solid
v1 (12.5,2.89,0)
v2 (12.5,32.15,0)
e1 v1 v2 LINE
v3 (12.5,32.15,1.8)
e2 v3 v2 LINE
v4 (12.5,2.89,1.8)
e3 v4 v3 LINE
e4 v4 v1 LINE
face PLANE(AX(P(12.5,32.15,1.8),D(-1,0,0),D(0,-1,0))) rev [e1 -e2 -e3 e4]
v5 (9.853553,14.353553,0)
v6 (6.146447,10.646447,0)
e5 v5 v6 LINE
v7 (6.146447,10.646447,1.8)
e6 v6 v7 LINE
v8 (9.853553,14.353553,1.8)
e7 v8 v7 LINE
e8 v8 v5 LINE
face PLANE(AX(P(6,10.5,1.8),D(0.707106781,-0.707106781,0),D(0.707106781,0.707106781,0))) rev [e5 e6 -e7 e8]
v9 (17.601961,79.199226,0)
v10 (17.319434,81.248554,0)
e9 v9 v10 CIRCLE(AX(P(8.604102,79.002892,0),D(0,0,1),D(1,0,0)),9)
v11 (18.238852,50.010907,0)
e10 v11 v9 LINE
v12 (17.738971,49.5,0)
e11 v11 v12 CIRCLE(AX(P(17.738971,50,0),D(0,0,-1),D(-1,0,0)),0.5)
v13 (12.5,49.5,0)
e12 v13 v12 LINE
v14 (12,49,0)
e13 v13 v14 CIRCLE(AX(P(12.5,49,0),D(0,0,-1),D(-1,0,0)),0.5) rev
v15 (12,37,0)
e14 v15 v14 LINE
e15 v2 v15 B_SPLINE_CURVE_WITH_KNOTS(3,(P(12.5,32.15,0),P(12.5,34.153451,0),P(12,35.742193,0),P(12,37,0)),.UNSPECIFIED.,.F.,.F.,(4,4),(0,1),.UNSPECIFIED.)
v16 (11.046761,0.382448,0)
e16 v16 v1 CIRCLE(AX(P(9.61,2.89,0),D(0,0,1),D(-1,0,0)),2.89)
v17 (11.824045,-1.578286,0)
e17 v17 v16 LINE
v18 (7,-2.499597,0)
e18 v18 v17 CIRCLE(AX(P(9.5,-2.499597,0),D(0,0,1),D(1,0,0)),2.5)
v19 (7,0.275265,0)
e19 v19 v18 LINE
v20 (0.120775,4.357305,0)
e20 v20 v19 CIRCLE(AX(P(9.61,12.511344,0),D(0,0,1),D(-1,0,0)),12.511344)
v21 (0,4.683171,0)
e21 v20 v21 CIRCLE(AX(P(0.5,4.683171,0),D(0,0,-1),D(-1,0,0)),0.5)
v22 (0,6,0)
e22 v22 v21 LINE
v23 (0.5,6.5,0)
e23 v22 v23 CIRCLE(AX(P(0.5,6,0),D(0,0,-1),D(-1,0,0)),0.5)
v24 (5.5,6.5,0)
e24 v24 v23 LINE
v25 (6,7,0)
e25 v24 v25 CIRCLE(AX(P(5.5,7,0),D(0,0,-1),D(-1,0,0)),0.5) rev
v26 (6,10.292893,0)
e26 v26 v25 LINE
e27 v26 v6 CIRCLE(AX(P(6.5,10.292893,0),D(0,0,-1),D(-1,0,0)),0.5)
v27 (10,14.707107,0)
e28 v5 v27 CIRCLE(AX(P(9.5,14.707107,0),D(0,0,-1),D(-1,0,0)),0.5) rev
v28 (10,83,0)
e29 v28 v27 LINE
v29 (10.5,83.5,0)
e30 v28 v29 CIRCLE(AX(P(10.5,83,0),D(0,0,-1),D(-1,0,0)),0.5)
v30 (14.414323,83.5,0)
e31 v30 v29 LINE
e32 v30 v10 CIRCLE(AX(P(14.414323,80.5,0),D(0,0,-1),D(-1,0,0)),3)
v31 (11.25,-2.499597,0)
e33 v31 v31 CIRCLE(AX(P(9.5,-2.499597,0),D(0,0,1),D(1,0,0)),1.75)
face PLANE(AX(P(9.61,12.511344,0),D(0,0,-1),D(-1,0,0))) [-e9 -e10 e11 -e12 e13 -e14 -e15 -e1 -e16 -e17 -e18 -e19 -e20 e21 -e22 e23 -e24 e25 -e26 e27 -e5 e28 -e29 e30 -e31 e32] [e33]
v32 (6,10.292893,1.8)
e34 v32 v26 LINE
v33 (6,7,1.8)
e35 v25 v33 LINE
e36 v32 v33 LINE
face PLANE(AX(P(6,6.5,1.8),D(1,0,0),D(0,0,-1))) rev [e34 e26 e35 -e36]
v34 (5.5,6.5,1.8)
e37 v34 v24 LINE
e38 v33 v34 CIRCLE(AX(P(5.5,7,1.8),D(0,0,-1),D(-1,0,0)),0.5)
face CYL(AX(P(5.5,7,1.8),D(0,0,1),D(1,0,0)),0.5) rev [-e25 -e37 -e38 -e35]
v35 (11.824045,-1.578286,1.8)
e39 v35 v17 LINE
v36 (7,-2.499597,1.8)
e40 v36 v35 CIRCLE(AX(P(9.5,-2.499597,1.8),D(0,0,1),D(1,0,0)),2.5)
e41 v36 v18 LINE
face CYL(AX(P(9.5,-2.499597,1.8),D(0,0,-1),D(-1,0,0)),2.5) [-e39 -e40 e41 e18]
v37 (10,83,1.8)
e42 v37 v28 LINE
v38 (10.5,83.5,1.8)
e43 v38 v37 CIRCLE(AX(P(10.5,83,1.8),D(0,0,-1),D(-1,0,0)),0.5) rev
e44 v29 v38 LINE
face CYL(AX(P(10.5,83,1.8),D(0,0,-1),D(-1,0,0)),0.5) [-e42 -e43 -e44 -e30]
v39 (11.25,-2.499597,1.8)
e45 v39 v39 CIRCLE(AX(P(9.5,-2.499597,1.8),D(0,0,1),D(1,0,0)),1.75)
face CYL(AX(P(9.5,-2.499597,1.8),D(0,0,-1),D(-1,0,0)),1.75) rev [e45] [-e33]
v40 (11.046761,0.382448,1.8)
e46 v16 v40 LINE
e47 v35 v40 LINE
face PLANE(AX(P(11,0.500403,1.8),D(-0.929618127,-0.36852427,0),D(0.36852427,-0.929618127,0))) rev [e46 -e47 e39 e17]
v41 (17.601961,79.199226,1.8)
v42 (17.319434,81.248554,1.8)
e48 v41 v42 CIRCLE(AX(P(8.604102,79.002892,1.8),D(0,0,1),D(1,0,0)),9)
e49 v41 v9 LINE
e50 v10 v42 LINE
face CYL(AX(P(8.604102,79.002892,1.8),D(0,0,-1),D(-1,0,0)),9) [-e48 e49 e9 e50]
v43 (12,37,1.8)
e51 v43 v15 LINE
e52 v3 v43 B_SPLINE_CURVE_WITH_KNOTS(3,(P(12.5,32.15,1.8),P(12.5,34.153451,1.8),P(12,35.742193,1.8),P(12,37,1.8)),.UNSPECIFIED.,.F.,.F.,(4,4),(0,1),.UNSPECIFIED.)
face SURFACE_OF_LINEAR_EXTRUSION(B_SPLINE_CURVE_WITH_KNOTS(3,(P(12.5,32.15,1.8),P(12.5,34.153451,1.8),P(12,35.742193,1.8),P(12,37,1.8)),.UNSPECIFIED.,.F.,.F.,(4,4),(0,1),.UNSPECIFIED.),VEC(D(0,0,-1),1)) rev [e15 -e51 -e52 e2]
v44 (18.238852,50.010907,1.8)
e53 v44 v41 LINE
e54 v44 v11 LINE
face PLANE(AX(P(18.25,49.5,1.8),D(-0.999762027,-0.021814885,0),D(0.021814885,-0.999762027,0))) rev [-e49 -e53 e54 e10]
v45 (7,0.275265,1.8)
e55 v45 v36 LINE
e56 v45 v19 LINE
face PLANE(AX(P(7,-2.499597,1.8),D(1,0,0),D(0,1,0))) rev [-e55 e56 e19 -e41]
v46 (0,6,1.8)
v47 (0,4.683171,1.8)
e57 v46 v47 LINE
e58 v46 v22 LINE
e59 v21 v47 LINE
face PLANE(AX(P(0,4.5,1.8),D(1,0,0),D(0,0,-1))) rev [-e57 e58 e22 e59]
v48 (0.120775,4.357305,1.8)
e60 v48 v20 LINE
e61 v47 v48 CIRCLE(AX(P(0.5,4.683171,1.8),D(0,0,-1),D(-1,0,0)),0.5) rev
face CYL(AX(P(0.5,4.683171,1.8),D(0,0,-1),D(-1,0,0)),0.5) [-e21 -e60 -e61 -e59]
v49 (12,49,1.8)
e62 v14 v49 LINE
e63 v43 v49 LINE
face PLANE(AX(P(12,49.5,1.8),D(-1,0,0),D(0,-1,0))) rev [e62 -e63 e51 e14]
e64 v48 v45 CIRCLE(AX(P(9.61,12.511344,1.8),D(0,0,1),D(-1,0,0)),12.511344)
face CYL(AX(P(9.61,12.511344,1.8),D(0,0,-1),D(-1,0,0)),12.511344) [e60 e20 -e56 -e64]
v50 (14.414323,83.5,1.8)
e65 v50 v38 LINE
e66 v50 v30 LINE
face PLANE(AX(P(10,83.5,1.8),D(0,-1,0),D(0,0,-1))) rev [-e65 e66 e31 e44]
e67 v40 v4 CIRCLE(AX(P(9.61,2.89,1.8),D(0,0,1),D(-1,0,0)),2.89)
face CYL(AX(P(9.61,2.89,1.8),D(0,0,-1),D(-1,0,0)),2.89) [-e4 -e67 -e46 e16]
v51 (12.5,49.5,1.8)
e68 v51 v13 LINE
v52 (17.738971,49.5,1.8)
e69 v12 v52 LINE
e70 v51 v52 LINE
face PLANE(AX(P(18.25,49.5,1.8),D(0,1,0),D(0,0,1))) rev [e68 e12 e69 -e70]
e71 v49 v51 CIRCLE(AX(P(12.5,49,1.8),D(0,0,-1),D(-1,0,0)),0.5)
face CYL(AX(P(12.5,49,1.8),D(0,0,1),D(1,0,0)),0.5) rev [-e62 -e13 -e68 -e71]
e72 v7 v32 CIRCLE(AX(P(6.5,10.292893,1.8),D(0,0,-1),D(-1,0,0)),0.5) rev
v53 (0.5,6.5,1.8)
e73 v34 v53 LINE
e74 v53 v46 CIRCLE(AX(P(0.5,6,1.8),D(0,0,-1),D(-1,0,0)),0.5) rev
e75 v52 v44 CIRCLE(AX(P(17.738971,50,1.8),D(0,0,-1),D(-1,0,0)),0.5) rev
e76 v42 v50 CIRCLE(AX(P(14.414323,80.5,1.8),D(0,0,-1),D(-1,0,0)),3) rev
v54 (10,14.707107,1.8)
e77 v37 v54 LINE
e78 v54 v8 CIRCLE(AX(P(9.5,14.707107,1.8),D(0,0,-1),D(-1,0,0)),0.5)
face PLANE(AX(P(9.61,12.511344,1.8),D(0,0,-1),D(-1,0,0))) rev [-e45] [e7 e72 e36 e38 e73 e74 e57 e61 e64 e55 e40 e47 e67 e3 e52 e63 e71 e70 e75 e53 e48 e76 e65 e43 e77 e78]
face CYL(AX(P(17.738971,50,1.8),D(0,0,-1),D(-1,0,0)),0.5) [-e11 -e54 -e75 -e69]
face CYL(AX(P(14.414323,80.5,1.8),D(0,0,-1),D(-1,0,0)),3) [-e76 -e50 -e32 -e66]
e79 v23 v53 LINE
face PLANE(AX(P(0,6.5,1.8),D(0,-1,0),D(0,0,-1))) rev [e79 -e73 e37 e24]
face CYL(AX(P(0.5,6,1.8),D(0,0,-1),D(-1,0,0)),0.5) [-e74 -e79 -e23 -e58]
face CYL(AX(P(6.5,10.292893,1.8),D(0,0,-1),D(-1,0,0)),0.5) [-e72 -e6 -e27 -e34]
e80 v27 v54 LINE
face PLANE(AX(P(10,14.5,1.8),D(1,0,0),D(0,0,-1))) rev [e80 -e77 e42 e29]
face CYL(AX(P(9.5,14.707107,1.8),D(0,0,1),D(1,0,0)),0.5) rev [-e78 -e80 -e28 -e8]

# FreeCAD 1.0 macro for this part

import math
import FreeCAD as App
import Part
import Sketcher

V = App.Vector
Q = App.Units.Quantity


def edges_at(feature, points):
    """Names of the edges that pass closest to the given points."""
    edges = feature.Shape.Edges
    near = lambda p: min(range(len(edges)), key=lambda i: edges[i].distToShape(Part.Vertex(*p))[0])
    return sorted({f"Edge{near(p) + 1}" for p in points})

doc = App.newDocument("Part")
params = doc.addObject("Spreadsheet::Sheet", "Params")
for row, (alias, value) in enumerate([
    ("sketch1_radius", "9 mm"),
    ("sketch1_width", "6 mm"),
    ("sketch1_height", "2 mm"),
    ("sketch1_height2", "69 mm"),
    ("sketch1_height3", "4 mm"),
    ("pad1_length", "1.8 mm"),
    ("fillet_radius", "0.5 mm"),
    ("sketch2_diameter", "3.5 mm"),
    ("sketch2_radius", "2.5 mm"),
    ("sketch2_width", "4 mm"),
    ("sketch2_height", "3 mm"),
    ("pad2_length", "1.8 mm"),
    ("fillet2_radius", "3 mm"),
], start=1):
    params.set(f"A{row}", alias)
    params.set(f"B{row}", "=" + value)
    params.setAlias(f"B{row}", alias)

body = doc.addObject("PartDesign::Body", "Body")

# Sketch on XY plane
sketch1 = body.newObject("Sketcher::SketchObject", "Sketch")
sketch1.AttachmentSupport = (doc.getObject("XY_Plane"), [""])
sketch1.MapMode = "FlatFace"
sketch1.addGeometry([
    Part.LineSegment(V(0, 6.5, 0), V(0, 4.5, 0)),  # 0
    Part.ArcOfCircle(Part.Circle(V(9.61, 12.511344, 0), V(0, 0, 1), 12.511344), math.radians(-140.183836), math.radians(-90)),  # 1
    Part.ArcOfCircle(Part.Circle(V(9.61, 2.89, 0), V(0, 0, 1), 2.89), math.radians(-90), math.radians(0)),  # 2
    Part.LineSegment(V(12.5, 2.89, 0), V(12.5, 32.15, 0)),  # 3
    Part.BSplineCurve([V(12, 37, 0), V(12, 35.742193, 0), V(12.5, 34.153451, 0), V(12.5, 32.15, 0)], [4, 4], [0, 1], False, 3, [1, 1, 1, 1], False),  # 4
    Part.LineSegment(V(12, 37, 0), V(12, 49.5, 0)),  # 5
    Part.LineSegment(V(12, 49.5, 0), V(18.25, 49.5, 0)),  # 6
    Part.LineSegment(V(18.25, 49.5, 0), V(17.601961, 79.199226, 0)),  # 7
    Part.ArcOfCircle(Part.Circle(V(8.604102, 79.002892, 0), V(0, 0, 1), 9), math.radians(1.25), math.radians(29.978742)),  # 8
    Part.LineSegment(V(16.4, 83.5, 0), V(10, 83.5, 0)),  # 9
    Part.LineSegment(V(10, 83.5, 0), V(10, 14.5, 0)),  # 10
    Part.LineSegment(V(10, 14.5, 0), V(6, 10.5, 0)),  # 11
    Part.LineSegment(V(6, 10.5, 0), V(6, 6.5, 0)),  # 12
    Part.LineSegment(V(6, 6.5, 0), V(0, 6.5, 0)),  # 13
], False)
sketch1.addConstraint([
    Sketcher.Constraint("Block", 4),
    Sketcher.Constraint("Coincident", 0, 2, 1, 1),
    Sketcher.Constraint("Tangent", 1, 2, 2, 1),
    Sketcher.Constraint("Tangent", 2, 2, 3, 1),
    Sketcher.Constraint("Coincident", 3, 2, 4, 2),
    Sketcher.Constraint("Coincident", 4, 1, 5, 1),
    Sketcher.Constraint("Coincident", 5, 2, 6, 1),
    Sketcher.Constraint("Coincident", 6, 2, 7, 1),
    Sketcher.Constraint("Tangent", 7, 2, 8, 1),
    Sketcher.Constraint("Coincident", 8, 2, 9, 1),
    Sketcher.Constraint("Coincident", 9, 2, 10, 1),
    Sketcher.Constraint("Coincident", 10, 2, 11, 1),
    Sketcher.Constraint("Coincident", 11, 2, 12, 1),
    Sketcher.Constraint("Coincident", 12, 2, 13, 1),
    Sketcher.Constraint("Coincident", 13, 2, 0, 1),
    Sketcher.Constraint("Vertical", 0),
    Sketcher.Constraint("Vertical", 3),
    Sketcher.Constraint("Vertical", 5),
    Sketcher.Constraint("Horizontal", 6),
    Sketcher.Constraint("Horizontal", 9),
    Sketcher.Constraint("Vertical", 10),
    Sketcher.Constraint("Vertical", 12),
    Sketcher.Constraint("Horizontal", 13),
    Sketcher.Constraint("PointOnObject", 0, 2, -2),
    Sketcher.Constraint("PointOnObject", 1, 2, -1),
    Sketcher.Constraint("Vertical", 1, 3, 2, 3),
    Sketcher.Constraint("Radius", 8, Q("9 mm")),
    Sketcher.Constraint("DistanceX", 13, 2, 13, 1, Q("6 mm")),
    Sketcher.Constraint("DistanceY", 0, 2, 0, 1, Q("2 mm")),
    Sketcher.Constraint("DistanceY", 10, 2, 10, 1, Q("69 mm")),
    Sketcher.Constraint("DistanceY", 12, 2, 12, 1, Q("4 mm")),
    Sketcher.Constraint("Angle", 11, Q("-135 deg")),
    Sketcher.Constraint("Radius", 2, Q("2.89 mm")),
    Sketcher.Constraint("DistanceX", 9, 2, 9, 1, Q("6.4 mm")),
    Sketcher.Constraint("DistanceY", 5, 1, 5, 2, Q("12.5 mm")),
    Sketcher.Constraint("DistanceX", -1, 1, 9, 2, Q("10 mm")),
    Sketcher.Constraint("DistanceY", 0, 2, 5, 2, Q("45 mm")),
    Sketcher.Constraint("DistanceX", 6, 1, 6, 2, Q("6.25 mm")),
    Sketcher.Constraint("Angle", 7, Q("91.25 deg")),
])
sketch1.setExpression("Constraints[26]", "Params.sketch1_radius")
sketch1.setExpression("Constraints[27]", "Params.sketch1_width")
sketch1.setExpression("Constraints[28]", "Params.sketch1_height")
sketch1.setExpression("Constraints[29]", "Params.sketch1_height2")
sketch1.setExpression("Constraints[30]", "Params.sketch1_height3")
pad1 = body.newObject("PartDesign::Pad", "Pad")
pad1.Profile = sketch1
pad1.setExpression("Length", "Params.pad1_length")
doc.recompute()

fillet = body.newObject("PartDesign::Fillet", "Fillet")
fillet.Base = (pad1, edges_at(pad1, [
    (0, 4.5, 0.9),
    (0, 6.5, 0.9),
    (6, 6.5, 0.9),
    (6, 10.5, 0.9),
    (10, 14.5, 0.9),
    (10, 83.5, 0.9),
    (18.25, 49.5, 0.9),
    (12, 49.5, 0.9),
]))
fillet.setExpression("Radius", "Params.fillet_radius")

# Sketch on XY plane
sketch2 = body.newObject("Sketcher::SketchObject", "Sketch001")
sketch2.AttachmentSupport = (doc.getObject("XY_Plane"), [""])
sketch2.MapMode = "FlatFace"
sketch2.addGeometry([
    Part.LineSegment(V(7, 0.5, 0), V(7, -2.5, 0)),  # 0
    Part.ArcOfCircle(Part.Circle(V(9.5, -2.5, 0), V(0, 0, 1), 2.5), math.radians(180), math.radians(382)),  # 1
    Part.LineSegment(V(11.8, -1.6, 0), V(11, 0.5, 0)),  # 2
    Part.LineSegment(V(11, 0.5, 0), V(7, 0.5, 0)),  # 3
    Part.Circle(V(9.5, -2.5, 0), V(0, 0, 1), 1.8),  # 4
], False)
sketch2.addConstraint([
    Sketcher.Constraint("Tangent", 0, 2, 1, 1),
    Sketcher.Constraint("Tangent", 1, 2, 2, 1),
    Sketcher.Constraint("Coincident", 2, 2, 3, 1),
    Sketcher.Constraint("Coincident", 3, 2, 0, 1),
    Sketcher.Constraint("Vertical", 0),
    Sketcher.Constraint("Horizontal", 3),
    Sketcher.Constraint("Coincident", 4, 3, 1, 3),
    Sketcher.Constraint("Diameter", 4, Q("3.5 mm")),
    Sketcher.Constraint("Radius", 1, Q("2.5 mm")),
    Sketcher.Constraint("DistanceX", 3, 2, 3, 1, Q("4 mm")),
    Sketcher.Constraint("DistanceY", 0, 2, 0, 1, Q("3 mm")),
    Sketcher.Constraint("DistanceX", -1, 1, 0, 2, Q("7 mm")),
    Sketcher.Constraint("DistanceY", 1, 3, -1, 1, Q("2.499597 mm")),
])
sketch2.setExpression("Constraints[7]", "Params.sketch2_diameter")
sketch2.setExpression("Constraints[8]", "Params.sketch2_radius")
sketch2.setExpression("Constraints[9]", "Params.sketch2_width")
sketch2.setExpression("Constraints[10]", "Params.sketch2_height")
pad2 = body.newObject("PartDesign::Pad", "Pad001")
pad2.Profile = sketch2
pad2.setExpression("Length", "Params.pad2_length")
doc.recompute()

fillet2 = body.newObject("PartDesign::Fillet", "Fillet001")
fillet2.Base = (pad2, edges_at(pad2, [(16.4, 83.5, 0.9)]))
fillet2.setExpression("Radius", "Params.fillet2_radius")

doc.recompute()
